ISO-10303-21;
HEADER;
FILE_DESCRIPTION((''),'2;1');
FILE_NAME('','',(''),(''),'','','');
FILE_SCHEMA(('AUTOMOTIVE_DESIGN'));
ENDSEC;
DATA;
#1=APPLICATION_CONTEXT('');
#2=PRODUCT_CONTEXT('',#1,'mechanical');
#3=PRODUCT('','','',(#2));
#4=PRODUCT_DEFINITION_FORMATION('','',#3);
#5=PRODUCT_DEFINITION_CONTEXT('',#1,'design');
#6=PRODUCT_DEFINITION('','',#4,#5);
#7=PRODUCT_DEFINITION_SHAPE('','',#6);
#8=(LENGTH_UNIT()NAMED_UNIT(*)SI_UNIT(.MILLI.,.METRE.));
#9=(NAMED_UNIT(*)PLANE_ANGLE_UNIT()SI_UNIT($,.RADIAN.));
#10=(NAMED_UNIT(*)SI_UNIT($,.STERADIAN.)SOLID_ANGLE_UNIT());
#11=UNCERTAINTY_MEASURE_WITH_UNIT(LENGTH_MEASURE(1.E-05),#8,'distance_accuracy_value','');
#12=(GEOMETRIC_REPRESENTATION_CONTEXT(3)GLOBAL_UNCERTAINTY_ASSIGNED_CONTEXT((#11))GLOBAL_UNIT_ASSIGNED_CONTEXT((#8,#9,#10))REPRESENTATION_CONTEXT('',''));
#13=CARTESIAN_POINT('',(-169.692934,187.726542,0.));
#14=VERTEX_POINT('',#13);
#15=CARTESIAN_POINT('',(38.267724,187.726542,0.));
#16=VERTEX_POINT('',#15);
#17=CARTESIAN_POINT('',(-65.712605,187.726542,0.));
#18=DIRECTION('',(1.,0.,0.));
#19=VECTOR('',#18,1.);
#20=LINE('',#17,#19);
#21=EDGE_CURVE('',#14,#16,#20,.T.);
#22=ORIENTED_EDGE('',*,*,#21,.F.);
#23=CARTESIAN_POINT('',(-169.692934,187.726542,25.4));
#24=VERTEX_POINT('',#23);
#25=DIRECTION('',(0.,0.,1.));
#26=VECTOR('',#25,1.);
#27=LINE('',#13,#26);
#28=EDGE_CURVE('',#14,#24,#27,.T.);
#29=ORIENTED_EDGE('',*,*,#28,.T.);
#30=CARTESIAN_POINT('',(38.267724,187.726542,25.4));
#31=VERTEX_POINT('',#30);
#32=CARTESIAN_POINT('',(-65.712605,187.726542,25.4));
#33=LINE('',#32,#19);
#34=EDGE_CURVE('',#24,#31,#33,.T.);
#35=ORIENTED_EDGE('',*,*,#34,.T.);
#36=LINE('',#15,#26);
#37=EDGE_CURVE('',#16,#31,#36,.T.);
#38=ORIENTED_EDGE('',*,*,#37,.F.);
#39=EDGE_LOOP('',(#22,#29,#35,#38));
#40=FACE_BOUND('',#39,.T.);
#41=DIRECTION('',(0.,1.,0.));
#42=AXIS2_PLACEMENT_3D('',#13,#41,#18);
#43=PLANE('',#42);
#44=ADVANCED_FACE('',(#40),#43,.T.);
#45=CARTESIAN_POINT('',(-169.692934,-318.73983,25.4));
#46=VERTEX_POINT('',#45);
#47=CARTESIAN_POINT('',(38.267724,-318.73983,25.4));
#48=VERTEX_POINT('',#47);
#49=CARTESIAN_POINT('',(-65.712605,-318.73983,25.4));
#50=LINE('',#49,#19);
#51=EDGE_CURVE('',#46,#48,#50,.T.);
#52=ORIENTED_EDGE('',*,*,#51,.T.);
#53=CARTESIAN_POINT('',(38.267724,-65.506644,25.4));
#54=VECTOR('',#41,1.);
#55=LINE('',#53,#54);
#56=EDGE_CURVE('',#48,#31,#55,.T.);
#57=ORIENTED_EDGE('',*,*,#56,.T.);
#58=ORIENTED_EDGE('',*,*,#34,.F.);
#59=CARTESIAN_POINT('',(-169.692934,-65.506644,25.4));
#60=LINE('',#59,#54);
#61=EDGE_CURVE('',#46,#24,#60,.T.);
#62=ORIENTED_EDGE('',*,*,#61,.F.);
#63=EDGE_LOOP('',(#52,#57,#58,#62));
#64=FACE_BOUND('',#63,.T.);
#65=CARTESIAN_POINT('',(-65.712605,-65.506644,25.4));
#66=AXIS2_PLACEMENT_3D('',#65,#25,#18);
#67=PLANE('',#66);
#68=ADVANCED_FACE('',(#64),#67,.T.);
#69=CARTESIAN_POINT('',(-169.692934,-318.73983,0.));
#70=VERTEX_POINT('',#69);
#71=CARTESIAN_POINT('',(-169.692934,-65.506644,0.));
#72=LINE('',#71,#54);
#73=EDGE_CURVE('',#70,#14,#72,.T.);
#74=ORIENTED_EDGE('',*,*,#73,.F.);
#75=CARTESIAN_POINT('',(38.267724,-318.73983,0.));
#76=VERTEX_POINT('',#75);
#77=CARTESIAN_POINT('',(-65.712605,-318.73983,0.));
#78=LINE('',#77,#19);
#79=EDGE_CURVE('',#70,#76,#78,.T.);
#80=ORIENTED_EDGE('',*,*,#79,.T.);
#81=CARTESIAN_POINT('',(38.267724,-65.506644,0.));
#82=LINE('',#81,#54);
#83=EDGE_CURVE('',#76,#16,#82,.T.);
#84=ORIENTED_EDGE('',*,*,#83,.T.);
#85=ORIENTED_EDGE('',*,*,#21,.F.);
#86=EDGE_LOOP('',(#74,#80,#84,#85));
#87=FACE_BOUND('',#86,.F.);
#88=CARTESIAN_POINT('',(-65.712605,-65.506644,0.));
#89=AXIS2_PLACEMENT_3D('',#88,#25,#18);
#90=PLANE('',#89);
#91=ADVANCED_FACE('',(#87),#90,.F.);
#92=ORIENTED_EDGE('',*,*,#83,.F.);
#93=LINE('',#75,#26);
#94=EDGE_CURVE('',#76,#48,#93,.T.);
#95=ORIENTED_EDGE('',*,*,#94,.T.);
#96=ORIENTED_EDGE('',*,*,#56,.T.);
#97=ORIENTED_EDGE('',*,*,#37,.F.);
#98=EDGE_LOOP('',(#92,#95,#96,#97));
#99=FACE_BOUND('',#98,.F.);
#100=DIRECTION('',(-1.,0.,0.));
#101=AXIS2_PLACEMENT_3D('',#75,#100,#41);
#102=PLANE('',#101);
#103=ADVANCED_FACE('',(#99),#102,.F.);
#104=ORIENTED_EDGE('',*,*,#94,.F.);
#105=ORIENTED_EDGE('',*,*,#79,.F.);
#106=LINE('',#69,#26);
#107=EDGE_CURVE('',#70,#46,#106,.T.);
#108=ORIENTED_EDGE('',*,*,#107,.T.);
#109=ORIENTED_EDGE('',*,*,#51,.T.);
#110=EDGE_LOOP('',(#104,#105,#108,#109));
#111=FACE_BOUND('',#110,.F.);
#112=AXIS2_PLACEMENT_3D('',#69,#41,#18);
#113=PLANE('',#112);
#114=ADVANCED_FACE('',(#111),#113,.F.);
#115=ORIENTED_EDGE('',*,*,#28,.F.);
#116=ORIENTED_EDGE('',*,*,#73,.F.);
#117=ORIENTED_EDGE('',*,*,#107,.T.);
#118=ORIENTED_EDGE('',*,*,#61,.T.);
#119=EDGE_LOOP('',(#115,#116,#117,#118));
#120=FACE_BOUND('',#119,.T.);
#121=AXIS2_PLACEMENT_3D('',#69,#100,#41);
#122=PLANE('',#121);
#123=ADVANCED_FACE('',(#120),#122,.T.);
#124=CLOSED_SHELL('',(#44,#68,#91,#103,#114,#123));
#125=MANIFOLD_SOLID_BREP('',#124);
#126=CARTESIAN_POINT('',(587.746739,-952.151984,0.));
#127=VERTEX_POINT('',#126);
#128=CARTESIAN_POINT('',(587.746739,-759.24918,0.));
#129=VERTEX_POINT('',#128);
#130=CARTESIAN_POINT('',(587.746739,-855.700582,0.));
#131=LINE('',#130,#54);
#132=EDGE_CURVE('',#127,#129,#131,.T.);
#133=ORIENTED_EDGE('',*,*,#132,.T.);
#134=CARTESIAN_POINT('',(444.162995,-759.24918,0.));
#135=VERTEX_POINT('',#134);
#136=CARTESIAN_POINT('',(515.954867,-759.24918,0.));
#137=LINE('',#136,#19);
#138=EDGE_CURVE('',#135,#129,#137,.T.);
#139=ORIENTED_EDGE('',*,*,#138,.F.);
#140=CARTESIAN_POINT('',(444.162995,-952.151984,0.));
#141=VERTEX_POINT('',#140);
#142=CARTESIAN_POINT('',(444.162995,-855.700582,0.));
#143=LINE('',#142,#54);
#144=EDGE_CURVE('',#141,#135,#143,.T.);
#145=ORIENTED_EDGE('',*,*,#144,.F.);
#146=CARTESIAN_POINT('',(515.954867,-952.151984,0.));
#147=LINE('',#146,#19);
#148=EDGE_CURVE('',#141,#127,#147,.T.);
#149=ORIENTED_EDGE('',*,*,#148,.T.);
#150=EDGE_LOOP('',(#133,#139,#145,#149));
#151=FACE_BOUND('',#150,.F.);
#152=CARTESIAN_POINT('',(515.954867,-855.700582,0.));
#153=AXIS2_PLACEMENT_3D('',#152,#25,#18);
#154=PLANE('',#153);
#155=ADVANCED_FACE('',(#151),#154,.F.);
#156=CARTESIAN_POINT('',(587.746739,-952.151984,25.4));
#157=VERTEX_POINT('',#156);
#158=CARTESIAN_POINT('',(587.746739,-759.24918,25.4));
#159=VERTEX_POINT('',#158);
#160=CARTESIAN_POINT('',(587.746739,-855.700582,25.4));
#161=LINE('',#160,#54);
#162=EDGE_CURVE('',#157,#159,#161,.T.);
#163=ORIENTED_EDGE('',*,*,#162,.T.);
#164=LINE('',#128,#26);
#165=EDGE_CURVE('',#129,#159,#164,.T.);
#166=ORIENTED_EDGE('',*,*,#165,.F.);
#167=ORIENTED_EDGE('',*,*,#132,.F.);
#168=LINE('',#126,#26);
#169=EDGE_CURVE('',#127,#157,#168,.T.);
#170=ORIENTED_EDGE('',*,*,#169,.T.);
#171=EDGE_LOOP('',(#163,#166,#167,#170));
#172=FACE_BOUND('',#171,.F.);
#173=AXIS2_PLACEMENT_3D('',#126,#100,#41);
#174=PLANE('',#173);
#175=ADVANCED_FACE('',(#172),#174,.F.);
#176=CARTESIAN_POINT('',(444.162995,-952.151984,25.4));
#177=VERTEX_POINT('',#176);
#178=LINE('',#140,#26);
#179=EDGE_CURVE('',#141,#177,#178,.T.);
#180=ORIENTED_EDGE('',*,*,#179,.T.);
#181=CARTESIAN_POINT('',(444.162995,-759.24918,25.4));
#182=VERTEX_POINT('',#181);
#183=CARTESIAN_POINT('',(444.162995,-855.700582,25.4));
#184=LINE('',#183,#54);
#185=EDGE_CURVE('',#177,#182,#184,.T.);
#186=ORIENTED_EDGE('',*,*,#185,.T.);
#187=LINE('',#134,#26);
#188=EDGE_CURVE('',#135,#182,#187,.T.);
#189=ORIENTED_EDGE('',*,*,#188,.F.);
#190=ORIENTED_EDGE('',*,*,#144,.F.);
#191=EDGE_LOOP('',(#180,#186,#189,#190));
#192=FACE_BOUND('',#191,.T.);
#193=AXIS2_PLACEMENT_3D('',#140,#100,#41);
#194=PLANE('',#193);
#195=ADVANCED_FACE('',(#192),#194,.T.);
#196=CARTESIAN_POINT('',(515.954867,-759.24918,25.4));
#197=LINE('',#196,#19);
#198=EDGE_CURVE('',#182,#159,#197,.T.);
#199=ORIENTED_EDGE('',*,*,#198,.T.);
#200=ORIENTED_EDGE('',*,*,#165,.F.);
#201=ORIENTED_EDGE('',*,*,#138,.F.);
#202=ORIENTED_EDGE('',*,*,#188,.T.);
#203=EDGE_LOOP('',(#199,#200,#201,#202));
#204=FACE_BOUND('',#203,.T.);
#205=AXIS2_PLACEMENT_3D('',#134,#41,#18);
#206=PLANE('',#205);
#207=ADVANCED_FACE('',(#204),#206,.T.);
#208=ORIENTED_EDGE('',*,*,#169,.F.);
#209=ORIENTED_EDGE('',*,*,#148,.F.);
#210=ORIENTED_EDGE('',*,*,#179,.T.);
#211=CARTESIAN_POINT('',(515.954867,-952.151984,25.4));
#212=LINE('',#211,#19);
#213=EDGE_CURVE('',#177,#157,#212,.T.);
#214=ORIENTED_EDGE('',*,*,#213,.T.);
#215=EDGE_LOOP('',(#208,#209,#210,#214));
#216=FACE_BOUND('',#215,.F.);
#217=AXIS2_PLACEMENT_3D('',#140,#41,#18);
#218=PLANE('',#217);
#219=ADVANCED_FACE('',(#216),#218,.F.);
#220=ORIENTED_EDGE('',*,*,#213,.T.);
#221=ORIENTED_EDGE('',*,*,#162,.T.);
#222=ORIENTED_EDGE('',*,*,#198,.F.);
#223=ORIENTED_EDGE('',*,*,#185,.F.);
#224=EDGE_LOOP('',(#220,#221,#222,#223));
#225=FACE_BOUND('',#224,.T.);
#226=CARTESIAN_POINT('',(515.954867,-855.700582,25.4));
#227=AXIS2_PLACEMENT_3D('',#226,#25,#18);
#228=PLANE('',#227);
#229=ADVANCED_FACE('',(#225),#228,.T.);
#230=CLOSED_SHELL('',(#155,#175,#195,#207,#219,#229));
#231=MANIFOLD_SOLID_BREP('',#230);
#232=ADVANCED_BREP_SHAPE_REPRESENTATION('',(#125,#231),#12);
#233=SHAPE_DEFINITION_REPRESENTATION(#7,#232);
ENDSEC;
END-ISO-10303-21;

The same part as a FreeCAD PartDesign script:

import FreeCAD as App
import Part
import Sketcher
Q = App.Units.Quantity


def add_polygon(sketch, points):
    """Adds a closed chain of lines whose ends are joined by coincident constraints."""
    first, n = sketch.GeometryCount, len(points)
    for a, b in zip(points, points[1:] + points[:1]):
        sketch.addGeometry(Part.LineSegment(App.Vector(*a, 0), App.Vector(*b, 0)), False)
    for i in range(n):
        sketch.addConstraint(Sketcher.Constraint("Coincident", first + i, 2, first + (i + 1) % n, 1))

doc = App.newDocument("Part")
body = doc.addObject("PartDesign::Body", "Body")
body.AllowCompound = True

sketch1 = body.newObject("Sketcher::SketchObject", "Sketch")
sketch1.AttachmentSupport = (doc.getObject("XY_Plane"), [""])
sketch1.MapMode = "FlatFace"
add_polygon(sketch1, [(-170, 188), (-170, -319), (38, -319), (38, 188)])
add_polygon(sketch1, [(444, -759), (444, -952), (588, -952), (588, -759)])
sketch1.addConstraint(Sketcher.Constraint("Vertical", 0))
sketch1.addConstraint(Sketcher.Constraint("Horizontal", 1))
sketch1.addConstraint(Sketcher.Constraint("Vertical", 2))
sketch1.addConstraint(Sketcher.Constraint("Horizontal", 3))
sketch1.addConstraint(Sketcher.Constraint("Vertical", 4))
sketch1.addConstraint(Sketcher.Constraint("Horizontal", 5))
sketch1.addConstraint(Sketcher.Constraint("Vertical", 6))
sketch1.addConstraint(Sketcher.Constraint("Horizontal", 7))
sketch1.addConstraint(Sketcher.Constraint("DistanceY", 6, 2, -1, 1, Q("29.8917 in")))
sketch1.addConstraint(Sketcher.Constraint("DistanceX", 1, 1, 1, 2, 207.960658))
sketch1.addConstraint(Sketcher.Constraint("DistanceX", 5, 1, 5, 2, 143.583744))
sketch1.addConstraint(Sketcher.Constraint("DistanceY", 0, 2, 0, 1, 506.466373))
sketch1.addConstraint(Sketcher.Constraint("DistanceY", 4, 2, 4, 1, 192.902803))
sketch1.addConstraint(Sketcher.Constraint("DistanceY", 0, 2, -1, 1, 318.73983))
sketch1.addConstraint(Sketcher.Constraint("DistanceX", -1, 1, 5, 2, 587.746739))
sketch1.addConstraint(Sketcher.Constraint("DistanceX", 1, 2, 4, 2, 405.895271))
pad1 = body.newObject("PartDesign::Pad", "Pad")
pad1.Profile = sketch1
pad1.Length = Q("1 in")

doc.recompute()
